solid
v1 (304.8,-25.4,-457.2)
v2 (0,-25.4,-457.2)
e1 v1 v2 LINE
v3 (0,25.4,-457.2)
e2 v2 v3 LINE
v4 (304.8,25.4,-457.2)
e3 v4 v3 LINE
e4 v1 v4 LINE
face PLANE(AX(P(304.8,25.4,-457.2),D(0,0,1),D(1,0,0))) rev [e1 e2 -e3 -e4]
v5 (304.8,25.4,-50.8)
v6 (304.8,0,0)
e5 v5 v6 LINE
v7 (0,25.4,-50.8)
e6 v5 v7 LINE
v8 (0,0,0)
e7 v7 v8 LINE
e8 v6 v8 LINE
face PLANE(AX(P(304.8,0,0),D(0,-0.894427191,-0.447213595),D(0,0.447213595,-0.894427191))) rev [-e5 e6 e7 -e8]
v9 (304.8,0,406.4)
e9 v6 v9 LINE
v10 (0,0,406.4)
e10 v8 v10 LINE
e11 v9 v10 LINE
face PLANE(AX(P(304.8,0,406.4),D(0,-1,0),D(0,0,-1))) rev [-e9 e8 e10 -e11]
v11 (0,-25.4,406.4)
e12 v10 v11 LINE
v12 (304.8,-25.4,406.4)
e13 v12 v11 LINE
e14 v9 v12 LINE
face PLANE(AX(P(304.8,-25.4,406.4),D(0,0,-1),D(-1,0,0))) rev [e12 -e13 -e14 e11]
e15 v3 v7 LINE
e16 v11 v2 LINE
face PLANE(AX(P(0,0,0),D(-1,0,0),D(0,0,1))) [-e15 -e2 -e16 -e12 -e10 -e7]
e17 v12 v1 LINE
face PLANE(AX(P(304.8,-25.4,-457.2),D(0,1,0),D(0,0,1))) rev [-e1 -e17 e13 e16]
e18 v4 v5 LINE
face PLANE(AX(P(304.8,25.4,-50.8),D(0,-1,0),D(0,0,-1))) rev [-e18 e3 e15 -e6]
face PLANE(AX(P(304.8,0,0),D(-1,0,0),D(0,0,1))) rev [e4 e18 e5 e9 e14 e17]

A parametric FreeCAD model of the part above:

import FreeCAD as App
import Part
import Sketcher
from FreeCAD import Vector
Q = App.Units.Quantity


def add_polygon(sketch, points):
    """Adds a closed chain of lines whose ends are joined by coincident constraints."""
    first, n = sketch.GeometryCount, len(points)
    for a, b in zip(points, points[1:] + points[:1]):
        sketch.addGeometry(Part.LineSegment(App.Vector(*a, 0), App.Vector(*b, 0)), False)
    for i in range(n):
        sketch.addConstraint(Sketcher.Constraint("Coincident", first + i, 2, first + (i + 1) % n, 1))

doc = App.newDocument("Part")
body = doc.addObject("PartDesign::Body", "Body")

# Sketch on YZ plane
sketch1 = doc.addObject("Sketcher::SketchObject", "Sketch")
body.addObject(sketch1)
sketch1.AttachmentSupport = (doc.YZ_Plane, [""])
sketch1.MapMode = "FlatFace"
add_polygon(sketch1, [(0, 0), (0, 406.4), (-25.4, 406.4), (-25.4, -457.2), (25.4, -457.2), (25.4, -50.8)])  # lines 0-5
sketch1.addConstraint([
    Sketcher.Constraint("Vertical", 0),
    Sketcher.Constraint("Horizontal", 1),
    Sketcher.Constraint("Vertical", 2),
    Sketcher.Constraint("Horizontal", 3),
    Sketcher.Constraint("Vertical", 4),
    Sketcher.Constraint("Coincident", 5, 2, -1, 1),
    Sketcher.Constraint("Equal", 0, 4),
    Sketcher.Constraint("DistanceX", 1, 2, 1, 1, Q("1 in")),
    Sketcher.Constraint("DistanceX", 3, 1, 3, 2, Q("2 in")),
    Sketcher.Constraint("DistanceY", 0, 1, 0, 2, Q("16 in")),
    Sketcher.Constraint("DistanceY", 2, 2, 2, 1, Q("34 in")),
])
pad1 = doc.addObject("PartDesign::Pad", "Pad")
body.addObject(pad1)
pad1.Profile = sketch1
pad1.Length = Q("12 in")

doc.recompute()
